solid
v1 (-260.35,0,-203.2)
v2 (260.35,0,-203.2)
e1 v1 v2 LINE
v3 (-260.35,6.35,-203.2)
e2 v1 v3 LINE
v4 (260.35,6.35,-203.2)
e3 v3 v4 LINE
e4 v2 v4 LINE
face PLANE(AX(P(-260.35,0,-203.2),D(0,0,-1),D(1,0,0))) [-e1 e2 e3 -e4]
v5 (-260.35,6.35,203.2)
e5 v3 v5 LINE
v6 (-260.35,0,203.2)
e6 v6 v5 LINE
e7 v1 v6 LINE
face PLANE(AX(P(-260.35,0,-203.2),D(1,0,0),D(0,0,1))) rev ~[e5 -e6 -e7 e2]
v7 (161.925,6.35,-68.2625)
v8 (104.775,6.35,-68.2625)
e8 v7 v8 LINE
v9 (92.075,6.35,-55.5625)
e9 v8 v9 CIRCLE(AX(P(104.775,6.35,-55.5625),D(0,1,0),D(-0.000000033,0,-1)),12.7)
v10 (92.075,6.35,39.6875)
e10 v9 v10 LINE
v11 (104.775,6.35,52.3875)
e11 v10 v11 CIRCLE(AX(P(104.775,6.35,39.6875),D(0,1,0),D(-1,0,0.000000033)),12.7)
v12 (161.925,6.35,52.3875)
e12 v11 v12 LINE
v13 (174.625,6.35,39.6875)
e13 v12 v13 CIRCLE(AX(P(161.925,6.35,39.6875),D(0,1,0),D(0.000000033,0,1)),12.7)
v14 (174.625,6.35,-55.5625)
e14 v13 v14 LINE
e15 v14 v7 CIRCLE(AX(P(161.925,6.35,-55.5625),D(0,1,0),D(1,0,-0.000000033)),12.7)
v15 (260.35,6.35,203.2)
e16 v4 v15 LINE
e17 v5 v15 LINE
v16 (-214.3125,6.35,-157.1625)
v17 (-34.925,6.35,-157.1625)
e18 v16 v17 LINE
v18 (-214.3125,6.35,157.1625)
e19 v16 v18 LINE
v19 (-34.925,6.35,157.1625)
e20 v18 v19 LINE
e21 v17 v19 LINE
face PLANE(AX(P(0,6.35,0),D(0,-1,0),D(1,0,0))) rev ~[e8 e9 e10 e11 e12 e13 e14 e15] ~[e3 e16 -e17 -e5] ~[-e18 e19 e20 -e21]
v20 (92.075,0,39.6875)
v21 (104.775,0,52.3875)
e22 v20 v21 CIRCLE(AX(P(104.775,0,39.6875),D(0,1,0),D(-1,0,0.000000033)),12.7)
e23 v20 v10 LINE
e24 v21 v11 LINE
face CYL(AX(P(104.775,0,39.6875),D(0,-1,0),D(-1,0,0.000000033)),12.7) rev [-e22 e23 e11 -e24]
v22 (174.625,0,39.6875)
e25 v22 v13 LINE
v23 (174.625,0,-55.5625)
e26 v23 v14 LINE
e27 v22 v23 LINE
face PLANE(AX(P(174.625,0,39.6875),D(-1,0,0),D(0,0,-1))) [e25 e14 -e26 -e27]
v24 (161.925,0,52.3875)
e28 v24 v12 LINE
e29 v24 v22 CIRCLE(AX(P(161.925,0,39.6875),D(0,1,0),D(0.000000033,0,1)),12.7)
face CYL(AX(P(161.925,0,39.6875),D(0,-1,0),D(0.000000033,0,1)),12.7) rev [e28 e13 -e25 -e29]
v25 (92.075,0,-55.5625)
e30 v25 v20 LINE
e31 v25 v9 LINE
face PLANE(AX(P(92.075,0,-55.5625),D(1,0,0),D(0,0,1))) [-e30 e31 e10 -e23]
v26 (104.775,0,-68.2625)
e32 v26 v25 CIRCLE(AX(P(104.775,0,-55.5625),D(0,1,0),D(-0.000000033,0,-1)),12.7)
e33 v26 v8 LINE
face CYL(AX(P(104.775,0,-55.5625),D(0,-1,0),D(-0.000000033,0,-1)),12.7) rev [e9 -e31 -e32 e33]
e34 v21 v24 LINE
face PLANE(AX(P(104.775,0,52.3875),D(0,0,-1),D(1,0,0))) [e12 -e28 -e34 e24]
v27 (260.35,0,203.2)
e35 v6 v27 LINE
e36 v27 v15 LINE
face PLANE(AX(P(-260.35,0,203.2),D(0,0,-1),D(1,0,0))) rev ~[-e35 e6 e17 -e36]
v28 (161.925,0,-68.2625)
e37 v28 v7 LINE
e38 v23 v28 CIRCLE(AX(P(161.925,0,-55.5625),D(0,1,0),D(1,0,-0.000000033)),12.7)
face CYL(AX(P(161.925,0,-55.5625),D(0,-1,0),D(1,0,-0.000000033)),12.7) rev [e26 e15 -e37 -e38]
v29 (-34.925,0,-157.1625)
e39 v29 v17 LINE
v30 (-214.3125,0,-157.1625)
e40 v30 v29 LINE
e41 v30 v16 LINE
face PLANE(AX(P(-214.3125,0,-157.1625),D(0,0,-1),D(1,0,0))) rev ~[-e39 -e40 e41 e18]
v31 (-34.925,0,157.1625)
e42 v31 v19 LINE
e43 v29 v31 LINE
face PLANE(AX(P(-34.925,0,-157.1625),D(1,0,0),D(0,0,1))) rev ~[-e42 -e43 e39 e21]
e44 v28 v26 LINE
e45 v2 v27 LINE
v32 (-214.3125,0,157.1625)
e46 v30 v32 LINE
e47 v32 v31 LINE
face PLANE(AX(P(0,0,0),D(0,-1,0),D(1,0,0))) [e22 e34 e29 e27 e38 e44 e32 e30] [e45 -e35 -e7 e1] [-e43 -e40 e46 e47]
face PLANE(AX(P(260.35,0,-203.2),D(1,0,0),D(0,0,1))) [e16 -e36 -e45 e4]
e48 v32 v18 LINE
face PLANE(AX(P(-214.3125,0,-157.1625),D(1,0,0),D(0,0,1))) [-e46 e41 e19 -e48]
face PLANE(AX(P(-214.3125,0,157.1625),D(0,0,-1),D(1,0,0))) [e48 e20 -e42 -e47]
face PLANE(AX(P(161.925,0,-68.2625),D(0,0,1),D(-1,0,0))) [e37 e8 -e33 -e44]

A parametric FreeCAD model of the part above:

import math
import FreeCAD as App
import Part
import Sketcher
from FreeCAD import Vector
Q = App.Units.Quantity


def add_polygon(sketch, points):
    """Adds a closed chain of lines whose ends are joined by coincident constraints."""
    first, n = sketch.GeometryCount, len(points)
    for a, b in zip(points, points[1:] + points[:1]):
        sketch.addGeometry(Part.LineSegment(App.Vector(*a, 0), App.Vector(*b, 0)), False)
    for i in range(n):
        sketch.addConstraint(Sketcher.Constraint("Coincident", first + i, 2, first + (i + 1) % n, 1))

doc = App.newDocument("Part")
body = doc.addObject("PartDesign::Body", "Body")

# Sketch on XZ plane
sketch1 = body.newObject("Sketcher::SketchObject", "Sketch")
sketch1.AttachmentSupport = (doc.getObject("XZ_Plane"), [""])
sketch1.MapMode = "FlatFace"
add_polygon(sketch1, [(-260.35, 203.2), (-260.35, -203.2), (260.35, -203.2), (260.35, 203.2)])  # lines 0-3
sketch1.addGeometry(Part.LineSegment(Vector(92.075, -55.5625, 0), Vector(92.075, 39.6875, 0)), False)  # 4
sketch1.addGeometry(Part.ArcOfCircle(Part.Circle(Vector(104.775, 39.6875, 0), Vector(0, 0, 1), 12.7), math.radians(90.000002), math.radians(179.999998)), False)  # 5
sketch1.addGeometry(Part.LineSegment(Vector(104.775, 52.3875, 0), Vector(161.925, 52.3875, 0)), False)  # 6
sketch1.addGeometry(Part.ArcOfCircle(Part.Circle(Vector(161.925, 39.6875, 0), Vector(0, 0, 1), 12.7), math.radians(0.000002), math.radians(89.999998)), False)  # 7
sketch1.addGeometry(Part.LineSegment(Vector(174.625, 39.6875, 0), Vector(174.625, -55.5625, 0)), False)  # 8
sketch1.addGeometry(Part.ArcOfCircle(Part.Circle(Vector(161.925, -55.5625, 0), Vector(0, 0, 1), 12.7), math.radians(-89.999998), math.radians(-0.000002)), False)  # 9
sketch1.addGeometry(Part.LineSegment(Vector(161.925, -68.2625, 0), Vector(104.775, -68.2625, 0)), False)  # 10
sketch1.addGeometry(Part.ArcOfCircle(Part.Circle(Vector(104.775, -55.5625, 0), Vector(0, 0, 1), 12.7), math.radians(-179.999998), math.radians(-90.000002)), False)  # 11
add_polygon(sketch1, [(-34.925, -157.1625), (-214.3125, -157.1625), (-214.3125, 157.1625), (-34.925, 157.1625)])  # lines 12-15
sketch1.addConstraint([
    Sketcher.Constraint("Tangent", 4, 2, 5, 2),
    Sketcher.Constraint("Tangent", 5, 1, 6, 1),
    Sketcher.Constraint("Tangent", 6, 2, 7, 2),
    Sketcher.Constraint("Tangent", 7, 1, 8, 1),
    Sketcher.Constraint("Tangent", 8, 2, 9, 2),
    Sketcher.Constraint("Tangent", 9, 1, 10, 1),
    Sketcher.Constraint("Tangent", 10, 2, 11, 2),
    Sketcher.Constraint("Tangent", 11, 1, 4, 1),
    Sketcher.Constraint("Vertical", 0),
    Sketcher.Constraint("Horizontal", 1),
    Sketcher.Constraint("Vertical", 2),
    Sketcher.Constraint("Horizontal", 3),
    Sketcher.Constraint("Vertical", 4),
    Sketcher.Constraint("Horizontal", 6),
    Sketcher.Constraint("Vertical", 8),
    Sketcher.Constraint("Horizontal", 10),
    Sketcher.Constraint("Horizontal", 12),
    Sketcher.Constraint("Vertical", 13),
    Sketcher.Constraint("Horizontal", 14),
    Sketcher.Constraint("Vertical", 15),
    Sketcher.Constraint("Equal", 5, 7),
    Sketcher.Constraint("Equal", 7, 9),
    Sketcher.Constraint("Equal", 9, 11),
    Sketcher.Constraint("Symmetric", 0, 2, 2, 2, -1, 1),
    Sketcher.Constraint("Radius", 5, Q("0.5 in")),
    Sketcher.Constraint("DistanceY", 0, 2, 0, 1, Q("16 in")),
    Sketcher.Constraint("DistanceX", 1, 1, 1, 2, Q("20.5 in")),
    Sketcher.Constraint("DistanceY", 12, 2, 11, 1, Q("4 in")),
    Sketcher.Constraint("DistanceX", 14, 2, 4, 2, Q("5 in")),
    Sketcher.Constraint("DistanceX", 6, 1, 6, 2, Q("2.25 in")),
    Sketcher.Constraint("DistanceY", 4, 1, 4, 2, Q("3.75 in")),
    Sketcher.Constraint("DistanceX", 12, 2, 12, 1, Q("7.0625 in")),
    Sketcher.Constraint("DistanceY", 13, 1, 13, 2, Q("12.375 in")),
    Sketcher.Constraint("DistanceX", -1, 1, 5, 3, Q("4.125 in")),
    Sketcher.Constraint("DistanceY", -1, 1, 5, 3, Q("1.5625 in")),
])
pad1 = body.newObject("PartDesign::Pad", "Pad")
pad1.Profile = sketch1
pad1.Length = Q("0.25 in")
pad1.Reversed = True

doc.recompute()
